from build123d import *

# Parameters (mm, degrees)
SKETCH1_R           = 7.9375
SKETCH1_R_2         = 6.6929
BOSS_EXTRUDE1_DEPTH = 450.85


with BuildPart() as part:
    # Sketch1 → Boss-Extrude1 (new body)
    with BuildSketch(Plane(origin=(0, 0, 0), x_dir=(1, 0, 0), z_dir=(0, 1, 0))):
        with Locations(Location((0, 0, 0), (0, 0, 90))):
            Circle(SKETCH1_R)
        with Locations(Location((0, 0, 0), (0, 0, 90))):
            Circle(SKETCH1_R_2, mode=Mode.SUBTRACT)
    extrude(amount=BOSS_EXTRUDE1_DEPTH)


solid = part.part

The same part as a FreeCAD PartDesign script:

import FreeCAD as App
import Part
import Sketcher
from FreeCAD import Vector
Q = App.Units.Quantity

doc = App.newDocument("Part")
params = doc.addObject("Spreadsheet::Sheet", "Params")
for row, (alias, value) in enumerate([
    ("sketch1_diameter", "0.625 in"),
    ("sketch1_diameter2", "0.527 in"),
    ("pad1_length", "17.75 in"),
], start=1):
    params.set(f"A{row}", alias)
    params.set(f"B{row}", "=" + value)
    params.setAlias(f"B{row}", alias)

body = doc.addObject("PartDesign::Body", "Body")

sketch1 = body.newObject("Sketcher::SketchObject", "Sketch")
sketch1.AttachmentSupport = (doc.getObject("XZ_Plane"), [""])
sketch1.MapMode = "FlatFace"
sketch1.addGeometry([
    Part.Circle(Vector(0, 0, 0), Vector(0, 0, 1), 7.9375),
    Part.Circle(Vector(0, 0, 0), Vector(0, 0, 1), 6.6929),
], False)
sketch1.addConstraint([
    Sketcher.Constraint("Coincident", 0, 3, -1, 1),
    Sketcher.Constraint("Coincident", 1, 3, -1, 1),
    Sketcher.Constraint("Diameter", 0, Q("0.625 in")),
    Sketcher.Constraint("Diameter", 1, Q("0.527 in")),
])
sketch1.setExpression("Constraints[2]", "Params.sketch1_diameter")
sketch1.setExpression("Constraints[3]", "Params.sketch1_diameter2")
pad1 = body.newObject("PartDesign::Pad", "Pad")
pad1.Profile = sketch1
pad1.setExpression("Length", "Params.pad1_length")
pad1.Reversed = True

doc.recompute()
